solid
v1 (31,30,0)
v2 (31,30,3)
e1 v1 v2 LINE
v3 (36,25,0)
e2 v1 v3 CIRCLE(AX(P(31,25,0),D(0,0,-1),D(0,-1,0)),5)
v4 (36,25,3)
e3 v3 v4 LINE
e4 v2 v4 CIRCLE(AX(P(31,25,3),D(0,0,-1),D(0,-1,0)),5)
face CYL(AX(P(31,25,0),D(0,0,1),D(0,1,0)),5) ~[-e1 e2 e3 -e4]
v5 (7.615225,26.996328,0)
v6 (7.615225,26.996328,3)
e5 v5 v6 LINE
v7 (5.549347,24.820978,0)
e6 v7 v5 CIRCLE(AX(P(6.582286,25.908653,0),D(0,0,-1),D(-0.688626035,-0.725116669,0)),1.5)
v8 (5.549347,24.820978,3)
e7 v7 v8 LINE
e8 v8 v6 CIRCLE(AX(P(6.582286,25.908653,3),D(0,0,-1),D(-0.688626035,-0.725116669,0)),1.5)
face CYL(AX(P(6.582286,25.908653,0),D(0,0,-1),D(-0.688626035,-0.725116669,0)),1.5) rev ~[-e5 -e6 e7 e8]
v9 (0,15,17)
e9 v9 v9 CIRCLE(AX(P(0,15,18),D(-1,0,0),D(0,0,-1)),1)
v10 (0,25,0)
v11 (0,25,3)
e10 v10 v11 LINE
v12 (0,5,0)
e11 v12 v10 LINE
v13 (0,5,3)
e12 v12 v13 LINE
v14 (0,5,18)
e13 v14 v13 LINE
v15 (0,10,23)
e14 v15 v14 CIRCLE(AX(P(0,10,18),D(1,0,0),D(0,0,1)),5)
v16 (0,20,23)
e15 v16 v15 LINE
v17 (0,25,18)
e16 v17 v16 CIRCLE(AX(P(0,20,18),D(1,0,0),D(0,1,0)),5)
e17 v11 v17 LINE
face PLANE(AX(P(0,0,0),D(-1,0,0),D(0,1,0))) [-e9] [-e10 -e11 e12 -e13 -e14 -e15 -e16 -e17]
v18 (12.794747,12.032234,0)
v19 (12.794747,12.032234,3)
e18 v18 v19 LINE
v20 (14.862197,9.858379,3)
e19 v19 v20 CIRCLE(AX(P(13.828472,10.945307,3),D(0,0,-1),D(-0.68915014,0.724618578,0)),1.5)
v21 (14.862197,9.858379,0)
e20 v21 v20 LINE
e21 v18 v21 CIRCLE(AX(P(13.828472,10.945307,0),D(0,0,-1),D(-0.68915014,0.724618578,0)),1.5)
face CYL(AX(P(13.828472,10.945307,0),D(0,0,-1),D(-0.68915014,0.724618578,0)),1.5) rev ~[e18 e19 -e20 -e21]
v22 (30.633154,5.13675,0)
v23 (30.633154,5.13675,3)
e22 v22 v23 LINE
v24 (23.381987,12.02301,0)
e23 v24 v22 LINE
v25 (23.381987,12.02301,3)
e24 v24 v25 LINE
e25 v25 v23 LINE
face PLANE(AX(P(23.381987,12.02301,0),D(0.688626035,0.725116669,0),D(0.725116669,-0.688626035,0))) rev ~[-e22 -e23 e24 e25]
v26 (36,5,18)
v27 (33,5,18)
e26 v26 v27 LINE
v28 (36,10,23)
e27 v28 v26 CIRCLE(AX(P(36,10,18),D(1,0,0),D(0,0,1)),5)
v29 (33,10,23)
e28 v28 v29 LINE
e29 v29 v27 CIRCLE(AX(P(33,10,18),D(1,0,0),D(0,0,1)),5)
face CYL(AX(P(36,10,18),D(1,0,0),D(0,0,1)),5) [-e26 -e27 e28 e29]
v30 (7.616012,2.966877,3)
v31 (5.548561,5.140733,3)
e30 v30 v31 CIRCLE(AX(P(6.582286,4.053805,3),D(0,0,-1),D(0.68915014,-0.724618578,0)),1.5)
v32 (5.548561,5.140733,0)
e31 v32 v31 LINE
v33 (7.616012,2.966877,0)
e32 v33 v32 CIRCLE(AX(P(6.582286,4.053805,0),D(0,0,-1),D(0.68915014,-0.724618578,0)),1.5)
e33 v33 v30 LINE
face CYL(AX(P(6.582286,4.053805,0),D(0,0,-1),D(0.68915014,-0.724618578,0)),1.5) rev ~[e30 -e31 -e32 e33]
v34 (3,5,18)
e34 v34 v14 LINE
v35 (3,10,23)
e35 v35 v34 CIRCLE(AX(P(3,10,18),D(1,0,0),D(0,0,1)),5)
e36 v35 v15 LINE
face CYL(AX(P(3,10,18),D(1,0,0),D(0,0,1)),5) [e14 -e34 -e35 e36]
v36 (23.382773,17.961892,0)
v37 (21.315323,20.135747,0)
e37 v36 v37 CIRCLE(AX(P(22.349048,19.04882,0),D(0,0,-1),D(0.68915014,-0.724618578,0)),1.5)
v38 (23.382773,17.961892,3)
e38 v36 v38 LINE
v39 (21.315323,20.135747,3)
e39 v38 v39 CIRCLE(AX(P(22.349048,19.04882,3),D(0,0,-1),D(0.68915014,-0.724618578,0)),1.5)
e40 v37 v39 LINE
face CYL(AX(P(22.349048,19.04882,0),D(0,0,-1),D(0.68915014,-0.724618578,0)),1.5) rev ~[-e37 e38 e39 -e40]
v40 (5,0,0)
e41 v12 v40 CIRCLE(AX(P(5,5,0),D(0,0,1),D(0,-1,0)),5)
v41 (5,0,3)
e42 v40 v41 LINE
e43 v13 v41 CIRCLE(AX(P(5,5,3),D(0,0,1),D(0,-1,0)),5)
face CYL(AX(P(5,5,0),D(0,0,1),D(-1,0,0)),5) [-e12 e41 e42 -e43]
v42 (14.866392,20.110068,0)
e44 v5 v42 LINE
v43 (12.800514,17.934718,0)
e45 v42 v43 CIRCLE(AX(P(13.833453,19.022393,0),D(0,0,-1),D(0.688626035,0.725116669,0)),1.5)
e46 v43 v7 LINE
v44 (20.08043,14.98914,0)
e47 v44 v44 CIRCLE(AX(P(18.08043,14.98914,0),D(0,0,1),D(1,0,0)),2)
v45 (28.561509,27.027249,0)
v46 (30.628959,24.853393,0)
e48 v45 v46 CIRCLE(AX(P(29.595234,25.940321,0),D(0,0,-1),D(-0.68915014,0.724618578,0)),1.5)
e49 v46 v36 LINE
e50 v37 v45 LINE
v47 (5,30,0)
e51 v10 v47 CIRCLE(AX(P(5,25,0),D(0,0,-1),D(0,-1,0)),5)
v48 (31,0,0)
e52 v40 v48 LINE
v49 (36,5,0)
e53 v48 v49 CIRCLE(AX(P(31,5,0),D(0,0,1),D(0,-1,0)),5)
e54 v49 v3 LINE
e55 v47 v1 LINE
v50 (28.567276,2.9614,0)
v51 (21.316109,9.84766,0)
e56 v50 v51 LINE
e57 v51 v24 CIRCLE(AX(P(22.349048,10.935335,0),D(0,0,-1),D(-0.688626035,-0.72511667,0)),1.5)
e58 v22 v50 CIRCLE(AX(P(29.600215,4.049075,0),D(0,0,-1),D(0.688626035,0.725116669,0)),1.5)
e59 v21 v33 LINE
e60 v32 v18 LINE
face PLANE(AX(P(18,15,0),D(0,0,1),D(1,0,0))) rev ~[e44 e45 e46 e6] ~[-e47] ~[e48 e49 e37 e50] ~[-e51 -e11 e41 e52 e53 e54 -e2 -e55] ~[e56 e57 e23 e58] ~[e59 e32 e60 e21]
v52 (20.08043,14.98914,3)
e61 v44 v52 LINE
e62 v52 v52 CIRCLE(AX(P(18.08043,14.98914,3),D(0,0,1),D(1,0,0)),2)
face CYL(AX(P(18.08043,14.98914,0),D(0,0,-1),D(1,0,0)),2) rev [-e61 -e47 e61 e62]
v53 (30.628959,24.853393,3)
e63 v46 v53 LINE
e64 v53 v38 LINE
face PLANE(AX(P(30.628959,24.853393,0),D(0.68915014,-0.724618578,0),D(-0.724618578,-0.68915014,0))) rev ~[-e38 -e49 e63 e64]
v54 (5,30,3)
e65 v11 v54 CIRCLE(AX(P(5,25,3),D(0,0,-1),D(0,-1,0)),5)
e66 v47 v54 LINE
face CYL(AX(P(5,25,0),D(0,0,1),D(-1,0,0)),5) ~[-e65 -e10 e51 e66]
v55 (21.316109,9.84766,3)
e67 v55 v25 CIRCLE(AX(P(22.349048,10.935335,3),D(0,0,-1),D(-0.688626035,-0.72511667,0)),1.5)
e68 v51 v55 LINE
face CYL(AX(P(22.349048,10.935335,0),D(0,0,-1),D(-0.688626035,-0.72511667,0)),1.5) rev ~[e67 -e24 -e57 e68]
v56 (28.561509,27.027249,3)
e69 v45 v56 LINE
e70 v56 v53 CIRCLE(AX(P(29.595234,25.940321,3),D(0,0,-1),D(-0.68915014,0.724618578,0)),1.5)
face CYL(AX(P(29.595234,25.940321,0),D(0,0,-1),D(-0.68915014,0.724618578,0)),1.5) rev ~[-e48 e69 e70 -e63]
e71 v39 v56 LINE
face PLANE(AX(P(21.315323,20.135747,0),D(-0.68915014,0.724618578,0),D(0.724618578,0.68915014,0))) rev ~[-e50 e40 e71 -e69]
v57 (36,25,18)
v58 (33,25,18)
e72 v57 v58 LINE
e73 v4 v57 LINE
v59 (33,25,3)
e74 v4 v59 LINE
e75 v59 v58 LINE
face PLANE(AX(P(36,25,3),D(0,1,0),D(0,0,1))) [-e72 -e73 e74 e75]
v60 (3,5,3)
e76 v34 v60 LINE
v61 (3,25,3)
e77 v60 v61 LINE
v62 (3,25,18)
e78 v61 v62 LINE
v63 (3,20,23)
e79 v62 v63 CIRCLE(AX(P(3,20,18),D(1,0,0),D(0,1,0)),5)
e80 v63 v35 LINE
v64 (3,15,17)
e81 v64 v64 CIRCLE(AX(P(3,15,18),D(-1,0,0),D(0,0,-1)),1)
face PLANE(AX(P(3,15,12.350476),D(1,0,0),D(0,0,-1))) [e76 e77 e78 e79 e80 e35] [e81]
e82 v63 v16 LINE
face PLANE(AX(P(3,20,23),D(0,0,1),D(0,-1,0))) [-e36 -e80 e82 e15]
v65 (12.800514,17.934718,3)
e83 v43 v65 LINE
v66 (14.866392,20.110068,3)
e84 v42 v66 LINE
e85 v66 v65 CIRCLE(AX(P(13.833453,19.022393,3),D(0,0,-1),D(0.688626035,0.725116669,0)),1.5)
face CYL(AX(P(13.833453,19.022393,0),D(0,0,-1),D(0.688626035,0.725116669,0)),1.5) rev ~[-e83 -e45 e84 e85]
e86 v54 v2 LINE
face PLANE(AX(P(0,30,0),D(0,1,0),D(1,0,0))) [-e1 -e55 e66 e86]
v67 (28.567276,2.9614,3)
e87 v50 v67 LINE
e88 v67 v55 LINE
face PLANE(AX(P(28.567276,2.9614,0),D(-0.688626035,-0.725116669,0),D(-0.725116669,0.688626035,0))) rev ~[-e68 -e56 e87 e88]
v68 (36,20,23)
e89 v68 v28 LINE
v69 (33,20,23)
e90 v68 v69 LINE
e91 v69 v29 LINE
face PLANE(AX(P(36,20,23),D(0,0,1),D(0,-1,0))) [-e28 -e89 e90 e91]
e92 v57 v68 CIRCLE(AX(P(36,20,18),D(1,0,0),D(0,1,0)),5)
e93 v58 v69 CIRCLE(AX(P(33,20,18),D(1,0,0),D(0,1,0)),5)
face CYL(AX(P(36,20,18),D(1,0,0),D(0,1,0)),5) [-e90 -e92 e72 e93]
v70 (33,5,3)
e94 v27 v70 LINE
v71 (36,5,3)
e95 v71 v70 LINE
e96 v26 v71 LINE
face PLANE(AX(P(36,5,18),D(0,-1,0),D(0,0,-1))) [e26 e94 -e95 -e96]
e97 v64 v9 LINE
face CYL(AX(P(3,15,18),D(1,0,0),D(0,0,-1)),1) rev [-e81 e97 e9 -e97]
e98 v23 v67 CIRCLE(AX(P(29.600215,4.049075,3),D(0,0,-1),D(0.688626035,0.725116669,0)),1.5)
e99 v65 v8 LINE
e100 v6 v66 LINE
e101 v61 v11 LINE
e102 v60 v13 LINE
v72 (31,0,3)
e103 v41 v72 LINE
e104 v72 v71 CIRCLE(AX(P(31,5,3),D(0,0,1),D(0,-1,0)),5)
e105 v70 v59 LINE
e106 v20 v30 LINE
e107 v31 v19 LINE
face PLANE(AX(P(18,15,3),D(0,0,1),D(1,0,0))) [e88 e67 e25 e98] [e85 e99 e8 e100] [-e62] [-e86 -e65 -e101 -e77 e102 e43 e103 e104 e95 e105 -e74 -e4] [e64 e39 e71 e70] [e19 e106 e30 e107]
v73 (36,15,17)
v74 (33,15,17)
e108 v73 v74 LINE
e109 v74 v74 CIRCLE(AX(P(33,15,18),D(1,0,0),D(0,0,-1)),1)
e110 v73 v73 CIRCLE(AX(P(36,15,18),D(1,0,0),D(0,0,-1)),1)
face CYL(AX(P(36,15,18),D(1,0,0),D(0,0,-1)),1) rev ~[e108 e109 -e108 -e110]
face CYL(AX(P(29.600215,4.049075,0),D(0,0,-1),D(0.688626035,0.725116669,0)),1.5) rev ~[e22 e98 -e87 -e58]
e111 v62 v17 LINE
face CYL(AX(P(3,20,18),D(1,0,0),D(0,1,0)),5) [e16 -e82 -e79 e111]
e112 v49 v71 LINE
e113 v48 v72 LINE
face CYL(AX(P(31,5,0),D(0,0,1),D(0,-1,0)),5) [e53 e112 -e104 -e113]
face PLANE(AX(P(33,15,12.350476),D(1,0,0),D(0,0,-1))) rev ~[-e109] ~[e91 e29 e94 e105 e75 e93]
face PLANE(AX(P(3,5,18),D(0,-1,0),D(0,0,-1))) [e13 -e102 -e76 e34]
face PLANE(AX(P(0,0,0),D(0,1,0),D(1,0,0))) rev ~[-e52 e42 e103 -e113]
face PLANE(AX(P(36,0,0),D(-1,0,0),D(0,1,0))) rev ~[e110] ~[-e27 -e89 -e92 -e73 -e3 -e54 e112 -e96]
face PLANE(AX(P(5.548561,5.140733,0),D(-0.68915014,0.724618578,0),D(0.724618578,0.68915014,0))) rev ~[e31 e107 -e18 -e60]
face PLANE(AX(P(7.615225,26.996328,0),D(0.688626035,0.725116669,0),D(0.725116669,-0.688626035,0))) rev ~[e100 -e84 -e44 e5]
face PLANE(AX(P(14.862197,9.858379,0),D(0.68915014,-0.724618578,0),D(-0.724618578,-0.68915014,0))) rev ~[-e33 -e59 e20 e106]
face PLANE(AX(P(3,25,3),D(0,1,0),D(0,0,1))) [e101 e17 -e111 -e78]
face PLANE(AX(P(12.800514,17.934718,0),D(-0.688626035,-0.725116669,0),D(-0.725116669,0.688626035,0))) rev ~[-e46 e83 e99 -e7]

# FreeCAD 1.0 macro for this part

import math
import FreeCAD as App
import Part
import Sketcher

V = App.Vector


def edges_at(feature, points):
    """Names of the edges that pass closest to the given points."""
    edges = feature.Shape.Edges
    near = lambda p: min(range(len(edges)), key=lambda i: edges[i].distToShape(Part.Vertex(*p))[0])
    return sorted({f"Edge{near(p) + 1}" for p in points})

doc = App.newDocument("Part")
body = doc.addObject("PartDesign::Body", "Body")

# Sketch on XY plane
sketch1 = body.newObject("Sketcher::SketchObject", "Sketch")
sketch1.AttachmentSupport = (doc.getObject("XY_Plane"), [""])
sketch1.MapMode = "FlatFace"
sketch1.addGeometry([
    Part.LineSegment(V(0, 30, 0), V(0, 0, 0)),  # 0
    Part.LineSegment(V(0, 0, 0), V(36, 0, 0)),  # 1
    Part.LineSegment(V(36, 0, 0), V(36, 30, 0)),  # 2
    Part.LineSegment(V(36, 30, 0), V(0, 30, 0)),  # 3
    Part.ArcOfCircle(Part.Circle(V(13.828472, 10.945307, 0), V(0, 0, 1), 1.5), math.radians(-46.437127), math.radians(133.562873)),  # 4
    Part.LineSegment(V(14.862197, 9.858379, 0), V(7.616012, 2.966877, 0)),  # 5
    Part.ArcOfCircle(Part.Circle(V(6.582286, 4.053805, 0), V(0, 0, 1), 1.5), math.radians(133.562873), math.radians(313.562873)),  # 6
    Part.LineSegment(V(5.548561, 5.140733, 0), V(12.794747, 12.032234, 0)),  # 7
    Part.Circle(V(18.08043, 14.98914, 0), V(0, 0, 1), 2),  # 8
    Part.ArcOfCircle(Part.Circle(V(22.349048, 10.935335, 0), V(0, 0, 1), 1.5), math.radians(46.478554), math.radians(226.478554)),  # 9
    Part.LineSegment(V(23.381987, 12.02301, 0), V(30.633154, 5.13675, 0)),  # 10
    Part.ArcOfCircle(Part.Circle(V(29.600215, 4.049075, 0), V(0, 0, 1), 1.5), math.radians(-133.521446), math.radians(46.478554)),  # 11
    Part.LineSegment(V(28.567276, 2.9614, 0), V(21.316109, 9.84766, 0)),  # 12
    Part.ArcOfCircle(Part.Circle(V(6.582286, 25.908653, 0), V(0, 0, 1), 1.5), math.radians(46.478554), math.radians(226.478554)),  # 13
    Part.LineSegment(V(7.615225, 26.996328, 0), V(14.866392, 20.110068, 0)),  # 14
    Part.ArcOfCircle(Part.Circle(V(13.833453, 19.022393, 0), V(0, 0, 1), 1.5), math.radians(-133.521446), math.radians(46.478554)),  # 15
    Part.LineSegment(V(12.800514, 17.934718, 0), V(5.549347, 24.820978, 0)),  # 16
    Part.ArcOfCircle(Part.Circle(V(29.595234, 25.940321, 0), V(0, 0, 1), 1.5), math.radians(-46.437127), math.radians(133.562873)),  # 17
    Part.LineSegment(V(30.628959, 24.853393, 0), V(23.382773, 17.961892, 0)),  # 18
    Part.ArcOfCircle(Part.Circle(V(22.349048, 19.04882, 0), V(0, 0, 1), 1.5), math.radians(133.562873), math.radians(313.562873)),  # 19
    Part.LineSegment(V(21.315323, 20.135747, 0), V(28.561509, 27.027249, 0)),  # 20
], False)
sketch1.addConstraint([
    Sketcher.Constraint("Coincident", 0, 2, 1, 1),
    Sketcher.Constraint("Coincident", 1, 2, 2, 1),
    Sketcher.Constraint("Coincident", 2, 2, 3, 1),
    Sketcher.Constraint("Coincident", 3, 2, 0, 1),
    Sketcher.Constraint("Tangent", 4, 1, 5, 1),
    Sketcher.Constraint("Tangent", 5, 2, 6, 2),
    Sketcher.Constraint("Tangent", 6, 1, 7, 1),
    Sketcher.Constraint("Tangent", 7, 2, 4, 2),
    Sketcher.Constraint("Tangent", 9, 1, 10, 1),
    Sketcher.Constraint("Tangent", 10, 2, 11, 2),
    Sketcher.Constraint("Tangent", 11, 1, 12, 1),
    Sketcher.Constraint("Tangent", 12, 2, 9, 2),
    Sketcher.Constraint("Tangent", 13, 1, 14, 1),
    Sketcher.Constraint("Tangent", 14, 2, 15, 2),
    Sketcher.Constraint("Tangent", 15, 1, 16, 1),
    Sketcher.Constraint("Tangent", 16, 2, 13, 2),
    Sketcher.Constraint("Tangent", 17, 1, 18, 1),
    Sketcher.Constraint("Tangent", 18, 2, 19, 2),
    Sketcher.Constraint("Tangent", 19, 1, 20, 1),
    Sketcher.Constraint("Tangent", 20, 2, 17, 2),
    Sketcher.Constraint("Vertical", 0),
    Sketcher.Constraint("Horizontal", 1),
    Sketcher.Constraint("Vertical", 2),
    Sketcher.Constraint("Horizontal", 3),
    Sketcher.Constraint("Coincident", 0, 2, -1, 1),
    Sketcher.Constraint("Equal", 4, 6),
    Sketcher.Constraint("Equal", 6, 9),
    Sketcher.Constraint("Equal", 9, 11),
    Sketcher.Constraint("Equal", 11, 13),
    Sketcher.Constraint("Equal", 13, 15),
    Sketcher.Constraint("Equal", 15, 17),
    Sketcher.Constraint("Equal", 17, 19),
    Sketcher.Constraint("Parallel", 12, 14),
    Sketcher.Constraint("Parallel", 7, 18),
    Sketcher.Constraint("Vertical", 6, 3, 13, 3),
    Sketcher.Constraint("Vertical", 9, 3, 19, 3),
    Sketcher.Constraint("Equal", 7, 10),
    Sketcher.Constraint("Equal", 12, 14),
    Sketcher.Constraint("Equal", 16, 18),
    Sketcher.Constraint("Diameter", 8, 4.0),
    Sketcher.Constraint("Radius", 4, 1.5),
    Sketcher.Constraint("DistanceX", 1, 1, 1, 2, 36.0),
    Sketcher.Constraint("DistanceY", 0, 2, 0, 1, 30.0),
    Sketcher.Constraint("Distance", 5, 10.0),
    Sketcher.Constraint("DistanceY", -1, 1, 11, 1, 2.9614),
    Sketcher.Constraint("DistanceY", 6, 3, 4, 3, 6.891501),
    Sketcher.Constraint("DistanceX", 7, 2, 9, 3, 9.554301),
    Sketcher.Constraint("DistanceY", 9, 3, 7, 2, 1.096899),
    Sketcher.Constraint("DistanceX", -1, 1, 8, 3, 18.08043),
    Sketcher.Constraint("DistanceY", -1, 1, 8, 3, 14.98914),
    Sketcher.Constraint("DistanceY", -1, 1, 17, 3, 25.940321),
    Sketcher.Constraint("DistanceY", -1, 1, 4, 1, 9.858379),
    Sketcher.Constraint("DistanceX", -1, 1, 5, 2, 7.616012),
    Sketcher.Constraint("DistanceY", -1, 1, 13, 1, 26.996328),
])
pad1 = body.newObject("PartDesign::Pad", "Pad")
pad1.Profile = sketch1
pad1.Length = 3

# Sketch on YZ plane
sketch2 = body.newObject("Sketcher::SketchObject", "Sketch001")
sketch2.AttachmentSupport = (doc.getObject("YZ_Plane"), [""])
sketch2.MapMode = "FlatFace"
sketch2.AttachmentOffset = App.Placement(V(0, 0, 36), App.Rotation())
sketch2.addGeometry([
    Part.LineSegment(V(5, 18, 0), V(5, 3, 0)),  # 0
    Part.LineSegment(V(5, 3, 0), V(25, 3, 0)),  # 1
    Part.LineSegment(V(25, 3, 0), V(25, 18, 0)),  # 2
    Part.ArcOfCircle(Part.Circle(V(20, 18, 0), V(0, 0, 1), 5), math.radians(0), math.radians(90)),  # 3
    Part.LineSegment(V(20, 23, 0), V(10, 23, 0)),  # 4
    Part.ArcOfCircle(Part.Circle(V(10, 18, 0), V(0, 0, 1), 5), math.radians(90), math.radians(180)),  # 5
    Part.Circle(V(15, 18, 0), V(0, 0, 1), 1),  # 6
], False)
sketch2.addConstraint([
    Sketcher.Constraint("Coincident", 0, 2, 1, 1),
    Sketcher.Constraint("Coincident", 1, 2, 2, 1),
    Sketcher.Constraint("Tangent", 2, 2, 3, 1),
    Sketcher.Constraint("Tangent", 3, 2, 4, 1),
    Sketcher.Constraint("Tangent", 4, 2, 5, 1),
    Sketcher.Constraint("Tangent", 5, 2, 0, 1),
    Sketcher.Constraint("Vertical", 0),
    Sketcher.Constraint("Horizontal", 1),
    Sketcher.Constraint("Vertical", 2),
    Sketcher.Constraint("Horizontal", 4),
    Sketcher.Constraint("Equal", 3, 5),
    Sketcher.Constraint("Horizontal", 5, 3, 6, 3),
    Sketcher.Constraint("Diameter", 6, 2.0),
    Sketcher.Constraint("Radius", 3, 5.0),
    Sketcher.Constraint("DistanceX", 1, 1, 1, 2, 20.0),
    Sketcher.Constraint("DistanceY", 0, 2, 0, 1, 15.0),
    Sketcher.Constraint("DistanceX", -1, 1, 3, 3, 20.0),
    Sketcher.Constraint("DistanceY", -1, 1, 3, 3, 18.0),
    Sketcher.Constraint("DistanceX", -1, 1, 6, 3, 15.0),
])
pad2 = body.newObject("PartDesign::Pad", "Pad001")
pad2.Profile = sketch2
pad2.Length = 3
pad2.Reversed = True

# Sketch on YZ plane
sketch3 = body.newObject("Sketcher::SketchObject", "Sketch002")
sketch3.AttachmentSupport = (doc.getObject("YZ_Plane"), [""])
sketch3.MapMode = "FlatFace"
sketch3.AttachmentOffset = App.Placement(V(0, 0, 3), App.Rotation())
sketch3.addGeometry([
    Part.LineSegment(V(25, 18, 0), V(25, 3, 0)),  # 0
    Part.LineSegment(V(25, 3, 0), V(5, 3, 0)),  # 1
    Part.LineSegment(V(5, 3, 0), V(5, 18, 0)),  # 2
    Part.ArcOfCircle(Part.Circle(V(10, 18, 0), V(0, 0, 1), 5), math.radians(90), math.radians(180)),  # 3
    Part.LineSegment(V(10, 23, 0), V(20, 23, 0)),  # 4
    Part.ArcOfCircle(Part.Circle(V(20, 18, 0), V(0, 0, 1), 5), math.radians(0), math.radians(90)),  # 5
    Part.Circle(V(15, 18, 0), V(0, 0, 1), 1),  # 6
], False)
sketch3.addConstraint([
    Sketcher.Constraint("Coincident", 0, 2, 1, 1),
    Sketcher.Constraint("Coincident", 1, 2, 2, 1),
    Sketcher.Constraint("Tangent", 2, 2, 3, 2),
    Sketcher.Constraint("Tangent", 3, 1, 4, 1),
    Sketcher.Constraint("Tangent", 4, 2, 5, 2),
    Sketcher.Constraint("Tangent", 5, 1, 0, 1),
    Sketcher.Constraint("Vertical", 0),
    Sketcher.Constraint("Horizontal", 1),
    Sketcher.Constraint("Vertical", 2),
    Sketcher.Constraint("Horizontal", 4),
    Sketcher.Constraint("Equal", 3, 5),
    Sketcher.Constraint("Horizontal", 5, 3, 6, 3),
    Sketcher.Constraint("Diameter", 6, 2.0),
    Sketcher.Constraint("Radius", 3, 5.0),
    Sketcher.Constraint("DistanceX", 1, 2, 1, 1, 20.0),
    Sketcher.Constraint("DistanceY", 0, 2, 0, 1, 15.0),
    Sketcher.Constraint("DistanceX", -1, 1, 3, 3, 10.0),
    Sketcher.Constraint("DistanceY", -1, 1, 3, 3, 18.0),
    Sketcher.Constraint("DistanceX", -1, 1, 6, 3, 15.0),
])
pad3 = body.newObject("PartDesign::Pad", "Pad002")
pad3.Profile = sketch3
pad3.Length = 3
pad3.Reversed = True
doc.recompute()

fillet = body.newObject("PartDesign::Fillet", "Fillet")
fillet.Base = (pad3, edges_at(pad3, [
    (36, 30, 1.5),
    (0, 30, 1.5),
    (0, 0, 1.5),
    (36, 0, 1.5),
]))
fillet.Radius = 5

doc.recompute()
